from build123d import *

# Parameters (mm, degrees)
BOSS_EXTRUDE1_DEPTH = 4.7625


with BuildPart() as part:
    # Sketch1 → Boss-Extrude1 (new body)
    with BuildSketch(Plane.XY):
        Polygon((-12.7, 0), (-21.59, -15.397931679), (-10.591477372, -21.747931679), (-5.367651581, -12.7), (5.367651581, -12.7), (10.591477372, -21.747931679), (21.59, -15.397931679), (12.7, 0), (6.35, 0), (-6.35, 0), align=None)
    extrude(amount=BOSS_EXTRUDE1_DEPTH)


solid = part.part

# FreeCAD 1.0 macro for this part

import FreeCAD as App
import Part
import Sketcher
from FreeCAD import Vector
Q = App.Units.Quantity

doc = App.newDocument("Part")
params = doc.addObject("Spreadsheet::Sheet", "Params")
for row, (alias, value) in enumerate([
    ("sketch1_width", "1 in"),
    ("sketch1_length", "0.7 in"),
    ("sketch1_length2", "0.5 in"),
    ("pad1_length", "0.1875 in"),
], start=1):
    params.set(f"A{row}", alias)
    params.set(f"B{row}", "=" + value)
    params.setAlias(f"B{row}", alias)

body = doc.addObject("PartDesign::Body", "Body")

sketch1 = doc.addObject("Sketcher::SketchObject", "Sketch")
body.addObject(sketch1)
sketch1.AttachmentSupport = (doc.XY_Plane, [""])
sketch1.MapMode = "FlatFace"
sketch1.addGeometry([
    Part.LineSegment(Vector(-13, 0, 0), Vector(-22, -15, 0)),
    Part.LineSegment(Vector(-22, -15, 0), Vector(-11, -22, 0)),
    Part.LineSegment(Vector(-11, -22, 0), Vector(-5, -13, 0)),
    Part.LineSegment(Vector(-5, -13, 0), Vector(5, -13, 0)),
    Part.LineSegment(Vector(5, -13, 0), Vector(11, -22, 0)),
    Part.LineSegment(Vector(11, -22, 0), Vector(22, -15, 0)),
    Part.LineSegment(Vector(22, -15, 0), Vector(13, 0, 0)),
    Part.LineSegment(Vector(13, 0, 0), Vector(-13, 0, 0)),
], False)
sketch1.addConstraint([
    Sketcher.Constraint("Coincident", 0, 2, 1, 1),
    Sketcher.Constraint("Coincident", 1, 2, 2, 1),
    Sketcher.Constraint("Coincident", 2, 2, 3, 1),
    Sketcher.Constraint("Coincident", 3, 2, 4, 1),
    Sketcher.Constraint("Coincident", 4, 2, 5, 1),
    Sketcher.Constraint("Coincident", 5, 2, 6, 1),
    Sketcher.Constraint("Coincident", 6, 2, 7, 1),
    Sketcher.Constraint("Coincident", 7, 2, 0, 1),
    Sketcher.Constraint("Horizontal", 3),
    Sketcher.Constraint("Horizontal", 7),
    Sketcher.Constraint("Symmetric", 6, 2, 7, 2, -1, 1),
    Sketcher.Constraint("Symmetric", 1, 2, 4, 2, -2),
    Sketcher.Constraint("Symmetric", 0, 2, 5, 2, -2),
    Sketcher.Constraint("Perpendicular", 0, 1),
    Sketcher.Constraint("Perpendicular", 1, 2),
    Sketcher.Constraint("Perpendicular", 4, 5),
    Sketcher.Constraint("DistanceX", 7, 2, 7, 1, Q("1 in")),
    Sketcher.Constraint("Angle", 0, Q("-120 deg")),
    Sketcher.Constraint("Distance", 0, Q("0.7 in")),
    Sketcher.Constraint("Distance", 1, Q("0.5 in")),
    Sketcher.Constraint("DistanceY", 2, 2, -1, 1, Q("0.5 in")),
])
sketch1.setExpression("Constraints[16]", "Params.sketch1_width")
sketch1.setExpression("Constraints[18]", "Params.sketch1_length")
sketch1.setExpression("Constraints[19]", "Params.sketch1_length2")
pad1 = doc.addObject("PartDesign::Pad", "Pad")
body.addObject(pad1)
pad1.Profile = sketch1
pad1.setExpression("Length", "Params.pad1_length")

doc.recompute()
